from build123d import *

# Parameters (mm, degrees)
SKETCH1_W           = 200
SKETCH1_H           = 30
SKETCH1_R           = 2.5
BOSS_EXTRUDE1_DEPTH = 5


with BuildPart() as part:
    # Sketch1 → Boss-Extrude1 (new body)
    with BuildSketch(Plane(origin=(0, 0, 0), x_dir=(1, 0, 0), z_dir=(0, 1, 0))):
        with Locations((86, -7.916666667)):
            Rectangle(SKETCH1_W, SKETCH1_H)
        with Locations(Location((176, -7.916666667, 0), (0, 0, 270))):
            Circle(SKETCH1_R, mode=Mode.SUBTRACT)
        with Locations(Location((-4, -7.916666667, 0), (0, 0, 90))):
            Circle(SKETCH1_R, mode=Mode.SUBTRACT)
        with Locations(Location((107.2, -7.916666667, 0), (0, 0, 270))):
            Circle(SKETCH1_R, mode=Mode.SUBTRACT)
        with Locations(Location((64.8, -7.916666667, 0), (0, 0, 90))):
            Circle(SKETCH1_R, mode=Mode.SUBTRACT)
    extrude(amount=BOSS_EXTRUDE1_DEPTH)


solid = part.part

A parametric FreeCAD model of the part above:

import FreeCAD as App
import Part
import Sketcher


def add_polygon(sketch, points):
    """Adds a closed chain of lines whose ends are joined by coincident constraints."""
    first, n = sketch.GeometryCount, len(points)
    for a, b in zip(points, points[1:] + points[:1]):
        sketch.addGeometry(Part.LineSegment(App.Vector(*a, 0), App.Vector(*b, 0)), False)
    for i in range(n):
        sketch.addConstraint(Sketcher.Constraint("Coincident", first + i, 2, first + (i + 1) % n, 1))

doc = App.newDocument("Part")
body = doc.addObject("PartDesign::Body", "Body")

sketch1 = doc.addObject("Sketcher::SketchObject", "Sketch")
body.addObject(sketch1)
sketch1.AttachmentSupport = (doc.XZ_Plane, [""])
sketch1.MapMode = "FlatFace"
add_polygon(sketch1, [(-14, -7.1), (-14, 22.9), (186, 22.9), (186, -7.1)])
sketch1.addGeometry(Part.Circle(App.Vector(-4, 7.9, 0), App.Vector(0, 0, 1), 2.5), False)
sketch1.addGeometry(Part.Circle(App.Vector(64.8, 7.9, 0), App.Vector(0, 0, 1), 2.5), False)
sketch1.addGeometry(Part.Circle(App.Vector(107.2, 7.9, 0), App.Vector(0, 0, 1), 2.5), False)
sketch1.addGeometry(Part.Circle(App.Vector(176, 7.9, 0), App.Vector(0, 0, 1), 2.5), False)
sketch1.addConstraint(Sketcher.Constraint("Vertical", 0))
sketch1.addConstraint(Sketcher.Constraint("Horizontal", 1))
sketch1.addConstraint(Sketcher.Constraint("Vertical", 2))
sketch1.addConstraint(Sketcher.Constraint("Horizontal", 3))
sketch1.addConstraint(Sketcher.Constraint("Equal", 4, 5))
sketch1.addConstraint(Sketcher.Constraint("Equal", 5, 6))
sketch1.addConstraint(Sketcher.Constraint("Equal", 6, 7))
sketch1.addConstraint(Sketcher.Constraint("Horizontal", 4, 3, 5, 3))
sketch1.addConstraint(Sketcher.Constraint("Horizontal", 5, 3, 6, 3))
sketch1.addConstraint(Sketcher.Constraint("Horizontal", 6, 3, 7, 3))
sketch1.addConstraint(Sketcher.Constraint("Diameter", 4, 5.0))
sketch1.addConstraint(Sketcher.Constraint("DistanceX", 1, 1, 1, 2, 200.0))
sketch1.addConstraint(Sketcher.Constraint("DistanceY", 0, 1, 0, 2, 30.0))
sketch1.addConstraint(Sketcher.Constraint("DistanceX", 4, 3, -1, 1, 4.0))
sketch1.addConstraint(Sketcher.Constraint("DistanceX", -1, 1, 7, 3, 176.0))
sketch1.addConstraint(Sketcher.Constraint("DistanceX", 0, 2, -1, 1, 14.0))
sketch1.addConstraint(Sketcher.Constraint("DistanceY", 4, 3, 0, 2, 15.0))
sketch1.addConstraint(Sketcher.Constraint("DistanceX", -1, 1, 5, 3, 64.8))
sketch1.addConstraint(Sketcher.Constraint("DistanceX", -1, 1, 6, 3, 107.2))
sketch1.addConstraint(Sketcher.Constraint("DistanceY", -1, 1, 4, 3, 7.916667))
pad1 = doc.addObject("PartDesign::Pad", "Pad")
body.addObject(pad1)
pad1.Profile = sketch1
pad1.Length = 5
pad1.Reversed = True

doc.recompute()
